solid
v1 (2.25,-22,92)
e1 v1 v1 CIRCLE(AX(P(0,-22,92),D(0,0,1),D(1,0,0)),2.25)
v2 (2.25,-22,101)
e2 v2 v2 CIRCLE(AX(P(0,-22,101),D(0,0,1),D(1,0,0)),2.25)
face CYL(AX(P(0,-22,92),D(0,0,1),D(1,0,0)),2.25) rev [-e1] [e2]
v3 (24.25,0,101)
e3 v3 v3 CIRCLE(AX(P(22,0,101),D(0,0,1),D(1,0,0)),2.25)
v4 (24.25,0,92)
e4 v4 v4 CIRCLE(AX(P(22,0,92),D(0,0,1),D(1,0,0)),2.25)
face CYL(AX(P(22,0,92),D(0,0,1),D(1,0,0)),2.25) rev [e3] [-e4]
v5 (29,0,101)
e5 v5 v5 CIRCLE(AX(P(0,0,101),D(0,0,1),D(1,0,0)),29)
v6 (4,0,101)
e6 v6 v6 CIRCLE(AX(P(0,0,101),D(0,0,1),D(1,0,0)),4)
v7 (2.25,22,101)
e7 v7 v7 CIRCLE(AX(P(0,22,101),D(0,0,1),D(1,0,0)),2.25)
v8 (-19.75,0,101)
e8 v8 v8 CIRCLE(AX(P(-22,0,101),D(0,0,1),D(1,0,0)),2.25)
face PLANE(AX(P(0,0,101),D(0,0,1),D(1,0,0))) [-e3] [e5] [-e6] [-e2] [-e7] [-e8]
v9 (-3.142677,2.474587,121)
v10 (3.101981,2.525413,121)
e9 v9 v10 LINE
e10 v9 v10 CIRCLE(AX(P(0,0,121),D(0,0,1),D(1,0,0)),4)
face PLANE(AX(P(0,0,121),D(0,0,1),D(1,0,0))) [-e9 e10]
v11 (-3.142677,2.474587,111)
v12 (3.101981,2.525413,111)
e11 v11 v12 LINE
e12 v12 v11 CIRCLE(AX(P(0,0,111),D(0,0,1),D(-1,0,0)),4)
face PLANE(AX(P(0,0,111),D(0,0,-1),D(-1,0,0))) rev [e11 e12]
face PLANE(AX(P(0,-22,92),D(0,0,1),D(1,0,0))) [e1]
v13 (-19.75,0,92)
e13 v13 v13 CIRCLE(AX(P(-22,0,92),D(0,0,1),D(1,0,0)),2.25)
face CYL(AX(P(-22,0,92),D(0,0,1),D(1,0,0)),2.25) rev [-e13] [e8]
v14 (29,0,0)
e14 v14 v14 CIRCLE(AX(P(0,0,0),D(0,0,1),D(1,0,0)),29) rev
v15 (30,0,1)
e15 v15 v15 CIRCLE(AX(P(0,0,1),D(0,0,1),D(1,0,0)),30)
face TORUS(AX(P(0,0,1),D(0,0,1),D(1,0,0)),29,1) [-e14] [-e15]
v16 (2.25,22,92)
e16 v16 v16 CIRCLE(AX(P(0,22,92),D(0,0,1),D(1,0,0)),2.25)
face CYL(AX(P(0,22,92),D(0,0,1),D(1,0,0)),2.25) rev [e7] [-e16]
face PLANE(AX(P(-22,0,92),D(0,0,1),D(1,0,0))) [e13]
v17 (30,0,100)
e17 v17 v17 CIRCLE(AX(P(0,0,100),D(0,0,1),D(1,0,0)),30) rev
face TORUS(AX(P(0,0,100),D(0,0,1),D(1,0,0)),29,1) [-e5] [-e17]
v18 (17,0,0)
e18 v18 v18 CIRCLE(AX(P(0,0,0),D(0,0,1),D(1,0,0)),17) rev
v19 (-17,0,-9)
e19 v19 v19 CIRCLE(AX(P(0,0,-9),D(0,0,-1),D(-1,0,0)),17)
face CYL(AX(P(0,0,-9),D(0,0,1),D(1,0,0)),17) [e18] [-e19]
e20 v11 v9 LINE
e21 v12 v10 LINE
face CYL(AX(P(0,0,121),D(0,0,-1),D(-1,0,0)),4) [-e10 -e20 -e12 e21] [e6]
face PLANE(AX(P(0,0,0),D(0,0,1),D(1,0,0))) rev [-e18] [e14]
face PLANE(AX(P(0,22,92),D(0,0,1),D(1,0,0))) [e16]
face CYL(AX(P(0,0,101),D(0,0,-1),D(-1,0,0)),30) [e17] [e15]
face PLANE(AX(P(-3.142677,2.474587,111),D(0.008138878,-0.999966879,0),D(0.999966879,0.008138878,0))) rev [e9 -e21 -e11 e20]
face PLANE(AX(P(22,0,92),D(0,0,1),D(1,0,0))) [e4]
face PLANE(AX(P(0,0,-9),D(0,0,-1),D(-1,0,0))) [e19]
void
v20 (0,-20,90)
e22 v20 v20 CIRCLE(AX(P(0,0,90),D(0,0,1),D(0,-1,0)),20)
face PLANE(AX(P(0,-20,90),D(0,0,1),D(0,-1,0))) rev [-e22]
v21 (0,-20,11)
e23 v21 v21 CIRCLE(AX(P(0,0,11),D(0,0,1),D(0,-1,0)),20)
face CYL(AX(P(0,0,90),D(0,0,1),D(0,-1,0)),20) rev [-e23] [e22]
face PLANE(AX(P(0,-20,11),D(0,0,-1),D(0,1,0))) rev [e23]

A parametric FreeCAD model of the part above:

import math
import FreeCAD as App
import Part
import Sketcher
Q = App.Units.Quantity


def edges_at(feature, points):
    """Names of the edges that pass closest to the given points."""
    edges = feature.Shape.Edges
    near = lambda p: min(range(len(edges)), key=lambda i: edges[i].distToShape(Part.Vertex(*p))[0])
    return sorted({f"Edge{near(p) + 1}" for p in points})


def add_polygon(sketch, points):
    """Adds a closed chain of lines whose ends are joined by coincident constraints."""
    first, n = sketch.GeometryCount, len(points)
    for a, b in zip(points, points[1:] + points[:1]):
        sketch.addGeometry(Part.LineSegment(App.Vector(*a, 0), App.Vector(*b, 0)), False)
    for i in range(n):
        sketch.addConstraint(Sketcher.Constraint("Coincident", first + i, 2, first + (i + 1) % n, 1))

doc = App.newDocument("Part")
params = doc.addObject("Spreadsheet::Sheet", "Params")
for row, (alias, value) in enumerate([
    ("sketch1_diameter", "60 mm"),
    ("pad1_length", "101 mm"),
    ("sketch2_diameter", "8 mm"),
    ("pad2_length", "20 mm"),
    ("sketch3_radius", "4 mm"),
    ("pocket1_length", "10 mm"),
    ("fillet_radius", "1 mm"),
    ("sketch4_diameter", "34 mm"),
    ("pad3_length", "9 mm"),
    ("sketch5_diameter", "4.5 mm"),
    ("pocket2_length", "9 mm"),
    ("sketch6_width", "20 mm"),
    ("sketch6_height", "79 mm"),
    ("groove_angle", "360 deg"),
], start=1):
    params.set(f"A{row}", alias)
    params.set(f"B{row}", "=" + value)
    params.setAlias(f"B{row}", alias)

body = doc.addObject("PartDesign::Body", "Body")

# Sketch on XY plane
sketch1 = doc.addObject("Sketcher::SketchObject", "Sketch")
body.addObject(sketch1)
sketch1.AttachmentSupport = (doc.XY_Plane, [""])
sketch1.MapMode = "FlatFace"
sketch1.addGeometry(Part.Circle(App.Vector(0, 0, 0), App.Vector(0, 0, 1), 30), False)
sketch1.addConstraint([
    Sketcher.Constraint("Coincident", 0, 3, -1, 1),
    Sketcher.Constraint("Diameter", 0, Q("60 mm")),
])
sketch1.setExpression("Constraints[1]", "Params.sketch1_diameter")
pad1 = doc.addObject("PartDesign::Pad", "Pad")
body.addObject(pad1)
pad1.Profile = sketch1
pad1.setExpression("Length", "Params.pad1_length")

# Sketch on XY plane
sketch2 = doc.addObject("Sketcher::SketchObject", "Sketch001")
body.addObject(sketch2)
sketch2.AttachmentSupport = (doc.XY_Plane, [""])
sketch2.MapMode = "FlatFace"
sketch2.AttachmentOffset = App.Placement(App.Vector(0, 0, 101), App.Rotation())
sketch2.addGeometry(Part.Circle(App.Vector(0, 0, 0), App.Vector(0, 0, 1), 4), False)
sketch2.addConstraint([
    Sketcher.Constraint("Coincident", 0, 3, -1, 1),
    Sketcher.Constraint("Diameter", 0, Q("8 mm")),
])
sketch2.setExpression("Constraints[1]", "Params.sketch2_diameter")
pad2 = doc.addObject("PartDesign::Pad", "Pad001")
body.addObject(pad2)
pad2.Profile = sketch2
pad2.setExpression("Length", "Params.pad2_length")

# Sketch on XY plane
sketch3 = doc.addObject("Sketcher::SketchObject", "Sketch002")
body.addObject(sketch3)
sketch3.AttachmentSupport = (doc.XY_Plane, [""])
sketch3.MapMode = "FlatFace"
sketch3.AttachmentOffset = App.Placement(App.Vector(0, 0, 111), App.Rotation())
sketch3.addGeometry([
    Part.LineSegment(App.Vector(-3.142677, 2.474587, 0), App.Vector(3.101981, 2.525413, 0)),
    Part.ArcOfCircle(Part.Circle(App.Vector(0, 0, 0), App.Vector(0, 0, 1), 4), math.radians(39.150035), math.radians(141.782622)),
], False)
sketch3.addConstraint([
    Sketcher.Constraint("Coincident", 0, 1, 1, 2),
    Sketcher.Constraint("Coincident", 1, 1, 0, 2),
    Sketcher.Constraint("Coincident", 1, 3, -1, 1),
    Sketcher.Constraint("Radius", 1, Q("4 mm")),
    Sketcher.Constraint("DistanceX", -1, 1, 1, 1, Q("3.101981 mm")),
    Sketcher.Constraint("DistanceX", 0, 1, 1, 1, Q("6.244659 mm")),
])
sketch3.setExpression("Constraints[3]", "Params.sketch3_radius")
pocket1 = doc.addObject("PartDesign::Pocket", "Pocket")
body.addObject(pocket1)
pocket1.Profile = sketch3
pocket1.setExpression("Length", "Params.pocket1_length")
pocket1.Reversed = True
doc.recompute()

fillet = doc.addObject("PartDesign::Fillet", "Fillet")
body.addObject(fillet)
fillet.Base = (pocket1, edges_at(pocket1, [(-30, 0, 0), (-30, 0, 101)]))
fillet.setExpression("Radius", "Params.fillet_radius")

# Sketch on XY plane
sketch4 = doc.addObject("Sketcher::SketchObject", "Sketch003")
body.addObject(sketch4)
sketch4.AttachmentSupport = (doc.XY_Plane, [""])
sketch4.MapMode = "FlatFace"
sketch4.addGeometry(Part.Circle(App.Vector(0, 0, 0), App.Vector(0, 0, 1), 17), False)
sketch4.addConstraint([
    Sketcher.Constraint("Coincident", 0, 3, -1, 1),
    Sketcher.Constraint("Diameter", 0, Q("34 mm")),
])
sketch4.setExpression("Constraints[1]", "Params.sketch4_diameter")
pad3 = doc.addObject("PartDesign::Pad", "Pad002")
body.addObject(pad3)
pad3.Profile = sketch4
pad3.setExpression("Length", "Params.pad3_length")
pad3.Reversed = True

# Sketch on XY plane
sketch5 = doc.addObject("Sketcher::SketchObject", "Sketch004")
body.addObject(sketch5)
sketch5.AttachmentSupport = (doc.XY_Plane, [""])
sketch5.MapMode = "FlatFace"
sketch5.AttachmentOffset = App.Placement(App.Vector(0, 0, 101), App.Rotation())
sketch5.addGeometry([
    Part.Circle(App.Vector(0, 22, 0), App.Vector(0, 0, 1), 2.25),
    Part.Circle(App.Vector(22, 0, 0), App.Vector(0, 0, 1), 2.25),
    Part.Circle(App.Vector(0, -22, 0), App.Vector(0, 0, 1), 2.25),
    Part.Circle(App.Vector(-22, 0, 0), App.Vector(0, 0, 1), 2.25),
], False)
sketch5.addConstraint([
    Sketcher.Constraint("Equal", 0, 1),
    Sketcher.Constraint("Equal", 1, 2),
    Sketcher.Constraint("Equal", 2, 3),
    Sketcher.Constraint("Symmetric", 0, 3, 2, 3, -1, 1),
    Sketcher.Constraint("Symmetric", 1, 3, 3, 3, -1, 1),
    Sketcher.Constraint("PointOnObject", 0, 3, -2),
    Sketcher.Constraint("PointOnObject", 1, 3, -1),
    Sketcher.Constraint("Diameter", 0, Q("4.5 mm")),
    Sketcher.Constraint("DistanceY", -1, 1, 0, 3, Q("22 mm")),
    Sketcher.Constraint("DistanceX", -1, 1, 1, 3, Q("22 mm")),
])
sketch5.setExpression("Constraints[7]", "Params.sketch5_diameter")
pocket2 = doc.addObject("PartDesign::Pocket", "Pocket001")
body.addObject(pocket2)
pocket2.Profile = sketch5
pocket2.setExpression("Length", "Params.pocket2_length")

# Sketch on YZ plane
sketch6 = doc.addObject("Sketcher::SketchObject", "Sketch005")
body.addObject(sketch6)
sketch6.AttachmentSupport = (doc.YZ_Plane, [""])
sketch6.MapMode = "FlatFace"
add_polygon(sketch6, [(-20, 90), (-20, 11), (0, 11), (0, 90)])  # lines 0-3
sketch6.addConstraint([
    Sketcher.Constraint("Vertical", 0),
    Sketcher.Constraint("Horizontal", 1),
    Sketcher.Constraint("Vertical", 2),
    Sketcher.Constraint("Horizontal", 3),
    Sketcher.Constraint("PointOnObject", 1, 2, -2),
    Sketcher.Constraint("DistanceX", 1, 1, 1, 2, Q("20 mm")),
    Sketcher.Constraint("DistanceY", 0, 2, 0, 1, Q("79 mm")),
    Sketcher.Constraint("DistanceY", -1, 1, 0, 2, Q("11 mm")),
])
sketch6.setExpression("Constraints[9]", "Params.sketch6_width")
sketch6.setExpression("Constraints[10]", "Params.sketch6_height")
groove = doc.addObject("PartDesign::Groove", "Groove")
body.addObject(groove)
groove.Profile = sketch6
groove.ReferenceAxis = (sketch6, ["V_Axis"])
groove.setExpression("Angle", "Params.groove_angle")

doc.recompute()
